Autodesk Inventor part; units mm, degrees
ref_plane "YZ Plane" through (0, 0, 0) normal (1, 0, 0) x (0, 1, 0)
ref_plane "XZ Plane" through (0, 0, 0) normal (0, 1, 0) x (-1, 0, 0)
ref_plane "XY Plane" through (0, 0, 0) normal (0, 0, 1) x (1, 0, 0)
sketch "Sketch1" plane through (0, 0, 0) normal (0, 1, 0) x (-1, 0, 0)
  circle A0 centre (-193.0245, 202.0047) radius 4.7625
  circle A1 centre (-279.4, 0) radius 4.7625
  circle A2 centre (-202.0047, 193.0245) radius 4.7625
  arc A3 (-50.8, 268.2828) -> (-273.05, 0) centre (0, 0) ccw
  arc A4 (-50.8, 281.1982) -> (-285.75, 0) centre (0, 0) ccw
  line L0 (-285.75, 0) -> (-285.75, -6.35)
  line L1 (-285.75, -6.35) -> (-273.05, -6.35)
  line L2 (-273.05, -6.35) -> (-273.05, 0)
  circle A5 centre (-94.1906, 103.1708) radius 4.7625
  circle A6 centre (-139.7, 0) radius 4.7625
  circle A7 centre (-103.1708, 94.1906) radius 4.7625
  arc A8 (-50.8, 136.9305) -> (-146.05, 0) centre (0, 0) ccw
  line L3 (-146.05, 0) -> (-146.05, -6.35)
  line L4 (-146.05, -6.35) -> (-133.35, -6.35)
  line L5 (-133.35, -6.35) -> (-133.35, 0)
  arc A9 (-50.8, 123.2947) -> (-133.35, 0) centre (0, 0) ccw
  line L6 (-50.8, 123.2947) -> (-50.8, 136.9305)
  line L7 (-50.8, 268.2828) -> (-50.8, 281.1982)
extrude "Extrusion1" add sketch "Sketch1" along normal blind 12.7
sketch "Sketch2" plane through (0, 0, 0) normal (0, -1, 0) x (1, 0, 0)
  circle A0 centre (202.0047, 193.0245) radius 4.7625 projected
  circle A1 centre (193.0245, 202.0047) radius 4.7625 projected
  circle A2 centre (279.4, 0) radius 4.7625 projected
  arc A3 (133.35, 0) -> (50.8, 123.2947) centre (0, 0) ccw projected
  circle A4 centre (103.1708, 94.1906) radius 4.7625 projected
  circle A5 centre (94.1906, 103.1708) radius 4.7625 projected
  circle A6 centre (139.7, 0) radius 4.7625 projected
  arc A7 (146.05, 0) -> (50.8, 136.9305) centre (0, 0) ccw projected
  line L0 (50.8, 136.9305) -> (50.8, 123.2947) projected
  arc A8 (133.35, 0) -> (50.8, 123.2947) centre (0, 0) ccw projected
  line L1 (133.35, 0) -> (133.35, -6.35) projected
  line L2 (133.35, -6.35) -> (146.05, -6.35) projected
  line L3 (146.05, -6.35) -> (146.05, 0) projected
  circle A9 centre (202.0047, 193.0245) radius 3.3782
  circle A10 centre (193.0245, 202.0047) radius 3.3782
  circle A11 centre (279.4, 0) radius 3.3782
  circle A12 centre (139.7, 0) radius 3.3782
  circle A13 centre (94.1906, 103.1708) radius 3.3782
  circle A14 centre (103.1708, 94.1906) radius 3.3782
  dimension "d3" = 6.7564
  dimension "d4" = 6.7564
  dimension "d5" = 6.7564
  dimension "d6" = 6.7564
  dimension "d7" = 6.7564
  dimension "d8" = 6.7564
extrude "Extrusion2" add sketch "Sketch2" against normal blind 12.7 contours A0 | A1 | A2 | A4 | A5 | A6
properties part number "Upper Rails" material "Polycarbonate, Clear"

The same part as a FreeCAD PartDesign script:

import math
import FreeCAD as App
import Part
import Sketcher

V = App.Vector
Q = App.Units.Quantity

doc = App.newDocument("Part")
body = doc.addObject("PartDesign::Body", "Body")
body.AllowCompound = True

# Sketch on XZ plane
sketch1 = body.newObject("Sketcher::SketchObject", "Sketch")
sketch1.AttachmentSupport = (doc.getObject("XZ_Plane"), [""])
sketch1.MapMode = "FlatFace"
sketch1.addGeometry([
    Part.ArcOfCircle(Part.Circle(V(0, 0, 0), V(0, 0, 1), 273.049997), math.radians(0), math.radians(79.277847)),  # 0
    Part.LineSegment(V(50.8, 268.2828, 0), V(50.8, 281.1982, 0)),  # 1
    Part.ArcOfCircle(Part.Circle(V(0, 0, 0), V(0, 0, 1), 285.750009), math.radians(0), math.radians(79.759652)),  # 2
    Part.LineSegment(V(285.75, 0, 0), V(285.75, -6.35, 0)),  # 3
    Part.LineSegment(V(285.75, -6.35, 0), V(273.05, -6.35, 0)),  # 4
    Part.LineSegment(V(273.05, -6.35, 0), V(273.05, 0, 0)),  # 5
    Part.Circle(V(279.4, 0, 0), V(0, 0, 1), 4.7625),  # 6
    Part.Circle(V(202.0047, 193.0245, 0), V(0, 0, 1), 4.7625),  # 7
    Part.Circle(V(193.0245, 202.0047, 0), V(0, 0, 1), 4.7625),  # 8
    Part.LineSegment(V(50.8, 123.2947, 0), V(50.8, 136.9305, 0)),  # 9
    Part.ArcOfCircle(Part.Circle(V(0, 0, 0), V(0, 0, 1), 146.049998), math.radians(0), math.radians(69.645593)),  # 10
    Part.LineSegment(V(146.05, 0, 0), V(146.05, -6.35, 0)),  # 11
    Part.LineSegment(V(146.05, -6.35, 0), V(133.35, -6.35, 0)),  # 12
    Part.LineSegment(V(133.35, -6.35, 0), V(133.35, 0, 0)),  # 13
    Part.ArcOfCircle(Part.Circle(V(0, 0, 0), V(0, 0, 1), 133.350002), math.radians(0), math.radians(67.607313)),  # 14
    Part.Circle(V(139.7, 0, 0), V(0, 0, 1), 4.7625),  # 15
    Part.Circle(V(103.1708, 94.1906, 0), V(0, 0, 1), 4.7625),  # 16
    Part.Circle(V(94.1906, 103.1708, 0), V(0, 0, 1), 4.7625),  # 17
], False)
sketch1.addConstraint([
    Sketcher.Constraint("Coincident", 0, 2, 1, 1),
    Sketcher.Constraint("Coincident", 1, 2, 2, 2),
    Sketcher.Constraint("Tangent", 2, 1, 3, 1),
    Sketcher.Constraint("Coincident", 3, 2, 4, 1),
    Sketcher.Constraint("Coincident", 4, 2, 5, 1),
    Sketcher.Constraint("Tangent", 5, 2, 0, 1),
    Sketcher.Constraint("Coincident", 9, 2, 10, 2),
    Sketcher.Constraint("Tangent", 10, 1, 11, 1),
    Sketcher.Constraint("Coincident", 11, 2, 12, 1),
    Sketcher.Constraint("Coincident", 12, 2, 13, 1),
    Sketcher.Constraint("Tangent", 13, 2, 14, 1),
    Sketcher.Constraint("Coincident", 14, 2, 9, 1),
    Sketcher.Constraint("Vertical", 1),
    Sketcher.Constraint("Vertical", 3),
    Sketcher.Constraint("Horizontal", 4),
    Sketcher.Constraint("Vertical", 5),
    Sketcher.Constraint("Vertical", 9),
    Sketcher.Constraint("Vertical", 11),
    Sketcher.Constraint("Horizontal", 12),
    Sketcher.Constraint("Vertical", 13),
    Sketcher.Constraint("Coincident", 0, 3, -1, 1),
    Sketcher.Constraint("Coincident", 2, 3, -1, 1),
    Sketcher.Constraint("Coincident", 10, 3, -1, 1),
    Sketcher.Constraint("Coincident", 14, 3, -1, 1),
    Sketcher.Constraint("Equal", 6, 7),
    Sketcher.Constraint("Equal", 7, 8),
    Sketcher.Constraint("Equal", 8, 15),
    Sketcher.Constraint("Equal", 15, 16),
    Sketcher.Constraint("Equal", 16, 17),
    Sketcher.Constraint("PointOnObject", 6, 3, -1),
    Sketcher.Constraint("PointOnObject", 15, 3, -1),
    Sketcher.Constraint("Horizontal", 4, 2, 11, 2),
    Sketcher.Constraint("Vertical", 1, 2, 9, 2),
    Sketcher.Constraint("Equal", 4, 12),
    Sketcher.Constraint("Radius", 0, Q("10.75 in")),
    Sketcher.Constraint("Radius", 2, Q("11.25 in")),
    Sketcher.Constraint("Radius", 10, Q("5.75 in")),
    Sketcher.Constraint("Diameter", 6, Q("0.375 in")),
    Sketcher.Constraint("DistanceX", -1, 1, 6, 3, Q("11 in")),
    Sketcher.Constraint("DistanceX", -1, 1, 1, 2, Q("2 in")),
    Sketcher.Constraint("DistanceY", 3, 2, 3, 1, Q("0.25 in")),
    Sketcher.Constraint("DistanceX", -1, 1, 15, 3, Q("5.5 in")),
    Sketcher.Constraint("DistanceY", 8, 3, 0, 2, Q("2.6093701 in")),
    Sketcher.Constraint("DistanceY", -1, 1, 7, 3, Q("7.5994 in")),
    Sketcher.Constraint("DistanceX", -1, 1, 8, 3, Q("7.5994 in")),
    Sketcher.Constraint("DistanceY", -1, 1, 16, 3, Q("3.7083 in")),
    Sketcher.Constraint("DistanceX", -1, 1, 17, 3, Q("3.7083 in")),
    Sketcher.Constraint("DistanceX", -1, 1, 7, 3, 202.0047),
    Sketcher.Constraint("DistanceX", -1, 1, 16, 3, 103.1708),
    Sketcher.Constraint("DistanceY", -1, 1, 17, 3, 103.1708),
])
pad1 = body.newObject("PartDesign::Pad", "Pad")
pad1.Profile = sketch1
pad1.Length = Q("0.5 in")
pad1.Reversed = True

# Sketch on XZ plane
sketch2 = body.newObject("Sketcher::SketchObject", "Sketch001")
sketch2.AttachmentSupport = (doc.getObject("XZ_Plane"), [""])
sketch2.MapMode = "FlatFace"
sketch2.addGeometry([
    Part.Circle(V(202.0047, 193.0245, 0), V(0, 0, 1), 4.7625),  # 0
    Part.Circle(V(202.0047, 193.0245, 0), V(0, 0, 1), 3.3782),  # 1
    Part.Circle(V(193.0245, 202.0047, 0), V(0, 0, 1), 4.7625),  # 2
    Part.Circle(V(193.0245, 202.0047, 0), V(0, 0, 1), 3.3782),  # 3
    Part.Circle(V(279.4, 0, 0), V(0, 0, 1), 4.7625),  # 4
    Part.Circle(V(279.4, 0, 0), V(0, 0, 1), 3.3782),  # 5
    Part.Circle(V(103.1708, 94.1906, 0), V(0, 0, 1), 4.7625),  # 6
    Part.Circle(V(103.1708, 94.1906, 0), V(0, 0, 1), 3.3782),  # 7
    Part.Circle(V(94.1906, 103.1708, 0), V(0, 0, 1), 4.7625),  # 8
    Part.Circle(V(94.1906, 103.1708, 0), V(0, 0, 1), 3.3782),  # 9
    Part.Circle(V(139.7, 0, 0), V(0, 0, 1), 4.7625),  # 10
    Part.Circle(V(139.7, 0, 0), V(0, 0, 1), 3.3782),  # 11
], False)
sketch2.addConstraint([
    Sketcher.Constraint("Coincident", 1, 3, 0, 3),
    Sketcher.Constraint("Coincident", 3, 3, 2, 3),
    Sketcher.Constraint("Coincident", 5, 3, 4, 3),
    Sketcher.Constraint("Coincident", 7, 3, 6, 3),
    Sketcher.Constraint("Coincident", 9, 3, 8, 3),
    Sketcher.Constraint("Coincident", 11, 3, 10, 3),
    Sketcher.Constraint("Equal", 0, 2),
    Sketcher.Constraint("Equal", 1, 3),
    Sketcher.Constraint("Equal", 2, 4),
    Sketcher.Constraint("Equal", 3, 5),
    Sketcher.Constraint("Equal", 4, 6),
    Sketcher.Constraint("Equal", 5, 7),
    Sketcher.Constraint("Equal", 6, 8),
    Sketcher.Constraint("Equal", 7, 9),
    Sketcher.Constraint("Equal", 8, 10),
    Sketcher.Constraint("Equal", 9, 11),
    Sketcher.Constraint("PointOnObject", 4, 3, -1),
    Sketcher.Constraint("PointOnObject", 10, 3, -1),
    Sketcher.Constraint("Diameter", 1, Q("0.266 in")),
    Sketcher.Constraint("Diameter", 0, Q("0.375 in")),
    Sketcher.Constraint("DistanceX", -1, 1, 4, 3, Q("11 in")),
    Sketcher.Constraint("DistanceX", -1, 1, 10, 3, Q("5.5 in")),
    Sketcher.Constraint("DistanceY", -1, 1, 0, 3, Q("7.5994 in")),
    Sketcher.Constraint("DistanceX", -1, 1, 2, 3, Q("7.5994 in")),
    Sketcher.Constraint("DistanceY", -1, 1, 6, 3, Q("3.7083 in")),
    Sketcher.Constraint("DistanceX", -1, 1, 8, 3, Q("3.7083 in")),
    Sketcher.Constraint("DistanceX", 6, 3, 0, 3, Q("3.8911 in")),
    Sketcher.Constraint("DistanceY", 8, 3, 2, 3, Q("3.8911 in")),
    Sketcher.Constraint("DistanceX", -1, 1, 0, 3, 202.0047),
    Sketcher.Constraint("DistanceY", -1, 1, 2, 3, 202.0047),
])
pad2 = body.newObject("PartDesign::Pad", "Pad001")
pad2.Profile = sketch2
pad2.Length = Q("0.5 in")
pad2.Reversed = True

doc.recompute()
